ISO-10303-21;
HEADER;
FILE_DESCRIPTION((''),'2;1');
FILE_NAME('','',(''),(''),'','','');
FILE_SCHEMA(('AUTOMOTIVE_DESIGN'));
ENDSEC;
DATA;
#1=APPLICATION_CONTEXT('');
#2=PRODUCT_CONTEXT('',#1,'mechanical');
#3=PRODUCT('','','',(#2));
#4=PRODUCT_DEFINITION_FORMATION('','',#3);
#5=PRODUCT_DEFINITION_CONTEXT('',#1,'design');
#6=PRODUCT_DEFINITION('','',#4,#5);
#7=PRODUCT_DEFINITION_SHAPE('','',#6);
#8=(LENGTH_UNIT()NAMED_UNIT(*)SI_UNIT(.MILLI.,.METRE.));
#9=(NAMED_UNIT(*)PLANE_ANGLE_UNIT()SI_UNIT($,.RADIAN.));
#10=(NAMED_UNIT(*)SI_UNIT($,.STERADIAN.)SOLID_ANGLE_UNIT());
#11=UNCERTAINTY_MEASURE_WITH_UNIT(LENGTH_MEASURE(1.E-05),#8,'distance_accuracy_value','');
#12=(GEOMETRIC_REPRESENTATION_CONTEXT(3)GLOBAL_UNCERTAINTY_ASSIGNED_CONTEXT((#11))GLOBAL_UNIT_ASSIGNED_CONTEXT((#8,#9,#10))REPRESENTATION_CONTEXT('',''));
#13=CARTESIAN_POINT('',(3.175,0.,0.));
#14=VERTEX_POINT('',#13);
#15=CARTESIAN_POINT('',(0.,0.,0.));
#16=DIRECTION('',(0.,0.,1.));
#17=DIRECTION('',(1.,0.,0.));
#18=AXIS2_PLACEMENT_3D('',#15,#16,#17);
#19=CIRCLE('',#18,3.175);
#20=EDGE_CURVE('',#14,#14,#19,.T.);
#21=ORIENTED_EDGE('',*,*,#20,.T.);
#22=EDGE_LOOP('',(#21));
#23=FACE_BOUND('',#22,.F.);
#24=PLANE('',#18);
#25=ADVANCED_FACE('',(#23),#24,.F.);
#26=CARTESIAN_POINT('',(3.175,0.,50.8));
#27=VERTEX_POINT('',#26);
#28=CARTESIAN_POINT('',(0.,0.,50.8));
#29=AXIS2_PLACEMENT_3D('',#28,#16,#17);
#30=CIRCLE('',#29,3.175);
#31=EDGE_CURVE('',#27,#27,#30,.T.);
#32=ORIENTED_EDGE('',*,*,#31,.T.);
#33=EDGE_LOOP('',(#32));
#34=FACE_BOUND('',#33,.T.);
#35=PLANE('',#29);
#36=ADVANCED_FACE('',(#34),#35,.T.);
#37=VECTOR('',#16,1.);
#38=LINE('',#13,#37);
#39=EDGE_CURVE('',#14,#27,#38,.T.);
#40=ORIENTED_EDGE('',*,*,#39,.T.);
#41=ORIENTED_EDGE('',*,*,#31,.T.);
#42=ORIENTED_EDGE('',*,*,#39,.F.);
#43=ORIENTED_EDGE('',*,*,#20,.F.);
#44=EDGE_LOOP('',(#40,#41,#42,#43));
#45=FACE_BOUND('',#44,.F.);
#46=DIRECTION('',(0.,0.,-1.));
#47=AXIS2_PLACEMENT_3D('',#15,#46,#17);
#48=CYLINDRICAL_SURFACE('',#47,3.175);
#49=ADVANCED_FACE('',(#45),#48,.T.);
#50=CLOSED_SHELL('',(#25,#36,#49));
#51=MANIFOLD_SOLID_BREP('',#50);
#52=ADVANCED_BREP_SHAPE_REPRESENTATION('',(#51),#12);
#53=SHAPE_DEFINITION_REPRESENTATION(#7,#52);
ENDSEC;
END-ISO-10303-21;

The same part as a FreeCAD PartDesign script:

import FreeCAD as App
import Part
import Sketcher

V = App.Vector
Q = App.Units.Quantity

doc = App.newDocument("Part")
body = doc.addObject("PartDesign::Body", "Body")

sketch1 = body.newObject("Sketcher::SketchObject", "Sketch")
sketch1.AttachmentSupport = (doc.getObject("XY_Plane"), [""])
sketch1.MapMode = "FlatFace"
sketch1.addGeometry(Part.Circle(V(0, 0, 0), V(0, 0, 1), 3.2), False)
sketch1.addConstraint([
    Sketcher.Constraint("Coincident", 0, 3, -1, 1),
    Sketcher.Constraint("Diameter", 0, Q("0.25 in")),
])
pad1 = body.newObject("PartDesign::Pad", "Pad")
pad1.Profile = sketch1
pad1.Length = Q("2 in")

doc.recompute()
